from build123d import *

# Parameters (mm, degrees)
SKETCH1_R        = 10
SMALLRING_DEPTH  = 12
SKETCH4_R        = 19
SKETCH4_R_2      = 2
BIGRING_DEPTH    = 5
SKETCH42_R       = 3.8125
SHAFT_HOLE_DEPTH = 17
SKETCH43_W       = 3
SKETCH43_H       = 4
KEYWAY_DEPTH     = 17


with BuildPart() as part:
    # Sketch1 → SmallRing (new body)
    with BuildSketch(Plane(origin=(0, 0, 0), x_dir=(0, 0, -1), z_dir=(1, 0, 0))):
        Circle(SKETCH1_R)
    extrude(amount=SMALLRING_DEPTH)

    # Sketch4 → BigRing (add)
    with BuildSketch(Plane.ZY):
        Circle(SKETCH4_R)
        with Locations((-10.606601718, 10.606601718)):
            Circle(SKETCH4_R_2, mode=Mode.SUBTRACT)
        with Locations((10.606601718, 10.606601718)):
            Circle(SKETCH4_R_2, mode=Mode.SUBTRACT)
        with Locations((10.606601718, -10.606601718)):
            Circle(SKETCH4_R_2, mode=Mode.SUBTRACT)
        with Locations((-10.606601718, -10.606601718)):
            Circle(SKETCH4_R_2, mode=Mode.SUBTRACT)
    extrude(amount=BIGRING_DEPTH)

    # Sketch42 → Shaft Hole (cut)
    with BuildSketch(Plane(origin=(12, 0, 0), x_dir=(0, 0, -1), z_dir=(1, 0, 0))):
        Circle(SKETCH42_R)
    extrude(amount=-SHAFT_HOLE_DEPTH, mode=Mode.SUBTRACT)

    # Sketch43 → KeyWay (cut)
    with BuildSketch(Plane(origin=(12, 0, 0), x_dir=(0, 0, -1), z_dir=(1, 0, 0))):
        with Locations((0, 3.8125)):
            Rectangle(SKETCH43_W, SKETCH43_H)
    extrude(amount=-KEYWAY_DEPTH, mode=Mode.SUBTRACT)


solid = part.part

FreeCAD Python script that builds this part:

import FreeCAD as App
import Part
import Sketcher
Q = App.Units.Quantity


def add_polygon(sketch, points):
    """Adds a closed chain of lines whose ends are joined by coincident constraints."""
    first, n = sketch.GeometryCount, len(points)
    for a, b in zip(points, points[1:] + points[:1]):
        sketch.addGeometry(Part.LineSegment(App.Vector(*a, 0), App.Vector(*b, 0)), False)
    for i in range(n):
        sketch.addConstraint(Sketcher.Constraint("Coincident", first + i, 2, first + (i + 1) % n, 1))

doc = App.newDocument("Part")
params = doc.addObject("Spreadsheet::Sheet", "Params")
for row, (alias, value) in enumerate([
    ("sketch1_diameter", "20 mm"),
    ("pad1_length", "12 mm"),
    ("sketch2_diameter", "38 mm"),
    ("sketch2_diameter2", "4 mm"),
    ("pad2_length", "5 mm"),
    ("pocket1_length", "17 mm"),
    ("sketch4_width", "4 mm"),
    ("sketch4_height", "3 mm"),
    ("pocket2_length", "17 mm"),
], start=1):
    params.set(f"A{row}", alias)
    params.set(f"B{row}", "=" + value)
    params.setAlias(f"B{row}", alias)

body = doc.addObject("PartDesign::Body", "Body")

sketch1 = body.newObject("Sketcher::SketchObject", "Sketch")
sketch1.AttachmentSupport = (doc.getObject("YZ_Plane"), [""])
sketch1.MapMode = "FlatFace"
sketch1.addGeometry(Part.Circle(App.Vector(0, 0, 0), App.Vector(0, 0, 1), 10), False)
sketch1.addConstraint([
    Sketcher.Constraint("Coincident", 0, 3, -1, 1),
    Sketcher.Constraint("Diameter", 0, Q("20 mm")),
])
sketch1.setExpression("Constraints[1]", "Params.sketch1_diameter")
pad1 = body.newObject("PartDesign::Pad", "Pad")
pad1.Profile = sketch1
pad1.setExpression("Length", "Params.pad1_length")

sketch2 = body.newObject("Sketcher::SketchObject", "Sketch001")
sketch2.AttachmentSupport = (doc.getObject("YZ_Plane"), [""])
sketch2.MapMode = "FlatFace"
sketch2.addGeometry([
    Part.Circle(App.Vector(0, 0, 0), App.Vector(0, 0, 1), 19),
    Part.Circle(App.Vector(-10.606602, -10.606602, 0), App.Vector(0, 0, 1), 2),
    Part.Circle(App.Vector(-10.606602, 10.606602, 0), App.Vector(0, 0, 1), 2),
    Part.Circle(App.Vector(10.606602, -10.606602, 0), App.Vector(0, 0, 1), 2),
    Part.Circle(App.Vector(10.606602, 10.606602, 0), App.Vector(0, 0, 1), 2),
], False)
sketch2.addConstraint([
    Sketcher.Constraint("Coincident", 0, 3, -1, 1),
    Sketcher.Constraint("Equal", 1, 2),
    Sketcher.Constraint("Equal", 2, 3),
    Sketcher.Constraint("Equal", 3, 4),
    Sketcher.Constraint("Symmetric", 2, 3, 3, 3, -1, 1),
    Sketcher.Constraint("Symmetric", 1, 3, 4, 3, -1, 1),
    Sketcher.Constraint("Symmetric", 1, 3, 3, 3, -2),
    Sketcher.Constraint("Diameter", 0, Q("38 mm")),
    Sketcher.Constraint("Diameter", 1, Q("4 mm")),
    Sketcher.Constraint("DistanceX", 1, 3, -1, 1, Q("10.606602 mm")),
    Sketcher.Constraint("DistanceY", 1, 3, -1, 1, Q("10.606602 mm")),
])
sketch2.setExpression("Constraints[7]", "Params.sketch2_diameter")
sketch2.setExpression("Constraints[8]", "Params.sketch2_diameter2")
pad2 = body.newObject("PartDesign::Pad", "Pad001")
pad2.Profile = sketch2
pad2.setExpression("Length", "Params.pad2_length")
pad2.Reversed = True

sketch3 = body.newObject("Sketcher::SketchObject", "Sketch002")
sketch3.AttachmentSupport = (doc.getObject("YZ_Plane"), [""])
sketch3.MapMode = "FlatFace"
sketch3.AttachmentOffset = App.Placement(App.Vector(0, 0, 12), App.Rotation())
sketch3.addGeometry(Part.Circle(App.Vector(0, 0, 0), App.Vector(0, 0, 1), 3.8125), False)
sketch3.addConstraint([
    Sketcher.Constraint("Coincident", 0, 3, -1, 1),
    Sketcher.Constraint("Diameter", 0, Q("7.625 mm")),
])
pocket1 = body.newObject("PartDesign::Pocket", "Pocket")
pocket1.Profile = sketch3
pocket1.setExpression("Length", "Params.pocket1_length")

sketch4 = body.newObject("Sketcher::SketchObject", "Sketch003")
sketch4.AttachmentSupport = (doc.getObject("YZ_Plane"), [""])
sketch4.MapMode = "FlatFace"
sketch4.AttachmentOffset = App.Placement(App.Vector(0, 0, 12), App.Rotation())
add_polygon(sketch4, [(5.8125, 1.5), (1.8125, 1.5), (1.8125, -1.5), (5.8125, -1.5)])
sketch4.addConstraint([
    Sketcher.Constraint("Horizontal", 0),
    Sketcher.Constraint("Vertical", 1),
    Sketcher.Constraint("Horizontal", 2),
    Sketcher.Constraint("Vertical", 3),
    Sketcher.Constraint("DistanceX", 0, 2, 0, 1, Q("4 mm")),
    Sketcher.Constraint("DistanceY", 1, 2, 1, 1, Q("3 mm")),
    Sketcher.Constraint("DistanceY", -1, 1, 0, 2, Q("1.5 mm")),
    Sketcher.Constraint("DistanceX", -1, 1, 0, 2, Q("1.8125 mm")),
])
sketch4.setExpression("Constraints[8]", "Params.sketch4_width")
sketch4.setExpression("Constraints[9]", "Params.sketch4_height")
pocket2 = body.newObject("PartDesign::Pocket", "Pocket001")
pocket2.Profile = sketch4
pocket2.setExpression("Length", "Params.pocket2_length")

doc.recompute()
